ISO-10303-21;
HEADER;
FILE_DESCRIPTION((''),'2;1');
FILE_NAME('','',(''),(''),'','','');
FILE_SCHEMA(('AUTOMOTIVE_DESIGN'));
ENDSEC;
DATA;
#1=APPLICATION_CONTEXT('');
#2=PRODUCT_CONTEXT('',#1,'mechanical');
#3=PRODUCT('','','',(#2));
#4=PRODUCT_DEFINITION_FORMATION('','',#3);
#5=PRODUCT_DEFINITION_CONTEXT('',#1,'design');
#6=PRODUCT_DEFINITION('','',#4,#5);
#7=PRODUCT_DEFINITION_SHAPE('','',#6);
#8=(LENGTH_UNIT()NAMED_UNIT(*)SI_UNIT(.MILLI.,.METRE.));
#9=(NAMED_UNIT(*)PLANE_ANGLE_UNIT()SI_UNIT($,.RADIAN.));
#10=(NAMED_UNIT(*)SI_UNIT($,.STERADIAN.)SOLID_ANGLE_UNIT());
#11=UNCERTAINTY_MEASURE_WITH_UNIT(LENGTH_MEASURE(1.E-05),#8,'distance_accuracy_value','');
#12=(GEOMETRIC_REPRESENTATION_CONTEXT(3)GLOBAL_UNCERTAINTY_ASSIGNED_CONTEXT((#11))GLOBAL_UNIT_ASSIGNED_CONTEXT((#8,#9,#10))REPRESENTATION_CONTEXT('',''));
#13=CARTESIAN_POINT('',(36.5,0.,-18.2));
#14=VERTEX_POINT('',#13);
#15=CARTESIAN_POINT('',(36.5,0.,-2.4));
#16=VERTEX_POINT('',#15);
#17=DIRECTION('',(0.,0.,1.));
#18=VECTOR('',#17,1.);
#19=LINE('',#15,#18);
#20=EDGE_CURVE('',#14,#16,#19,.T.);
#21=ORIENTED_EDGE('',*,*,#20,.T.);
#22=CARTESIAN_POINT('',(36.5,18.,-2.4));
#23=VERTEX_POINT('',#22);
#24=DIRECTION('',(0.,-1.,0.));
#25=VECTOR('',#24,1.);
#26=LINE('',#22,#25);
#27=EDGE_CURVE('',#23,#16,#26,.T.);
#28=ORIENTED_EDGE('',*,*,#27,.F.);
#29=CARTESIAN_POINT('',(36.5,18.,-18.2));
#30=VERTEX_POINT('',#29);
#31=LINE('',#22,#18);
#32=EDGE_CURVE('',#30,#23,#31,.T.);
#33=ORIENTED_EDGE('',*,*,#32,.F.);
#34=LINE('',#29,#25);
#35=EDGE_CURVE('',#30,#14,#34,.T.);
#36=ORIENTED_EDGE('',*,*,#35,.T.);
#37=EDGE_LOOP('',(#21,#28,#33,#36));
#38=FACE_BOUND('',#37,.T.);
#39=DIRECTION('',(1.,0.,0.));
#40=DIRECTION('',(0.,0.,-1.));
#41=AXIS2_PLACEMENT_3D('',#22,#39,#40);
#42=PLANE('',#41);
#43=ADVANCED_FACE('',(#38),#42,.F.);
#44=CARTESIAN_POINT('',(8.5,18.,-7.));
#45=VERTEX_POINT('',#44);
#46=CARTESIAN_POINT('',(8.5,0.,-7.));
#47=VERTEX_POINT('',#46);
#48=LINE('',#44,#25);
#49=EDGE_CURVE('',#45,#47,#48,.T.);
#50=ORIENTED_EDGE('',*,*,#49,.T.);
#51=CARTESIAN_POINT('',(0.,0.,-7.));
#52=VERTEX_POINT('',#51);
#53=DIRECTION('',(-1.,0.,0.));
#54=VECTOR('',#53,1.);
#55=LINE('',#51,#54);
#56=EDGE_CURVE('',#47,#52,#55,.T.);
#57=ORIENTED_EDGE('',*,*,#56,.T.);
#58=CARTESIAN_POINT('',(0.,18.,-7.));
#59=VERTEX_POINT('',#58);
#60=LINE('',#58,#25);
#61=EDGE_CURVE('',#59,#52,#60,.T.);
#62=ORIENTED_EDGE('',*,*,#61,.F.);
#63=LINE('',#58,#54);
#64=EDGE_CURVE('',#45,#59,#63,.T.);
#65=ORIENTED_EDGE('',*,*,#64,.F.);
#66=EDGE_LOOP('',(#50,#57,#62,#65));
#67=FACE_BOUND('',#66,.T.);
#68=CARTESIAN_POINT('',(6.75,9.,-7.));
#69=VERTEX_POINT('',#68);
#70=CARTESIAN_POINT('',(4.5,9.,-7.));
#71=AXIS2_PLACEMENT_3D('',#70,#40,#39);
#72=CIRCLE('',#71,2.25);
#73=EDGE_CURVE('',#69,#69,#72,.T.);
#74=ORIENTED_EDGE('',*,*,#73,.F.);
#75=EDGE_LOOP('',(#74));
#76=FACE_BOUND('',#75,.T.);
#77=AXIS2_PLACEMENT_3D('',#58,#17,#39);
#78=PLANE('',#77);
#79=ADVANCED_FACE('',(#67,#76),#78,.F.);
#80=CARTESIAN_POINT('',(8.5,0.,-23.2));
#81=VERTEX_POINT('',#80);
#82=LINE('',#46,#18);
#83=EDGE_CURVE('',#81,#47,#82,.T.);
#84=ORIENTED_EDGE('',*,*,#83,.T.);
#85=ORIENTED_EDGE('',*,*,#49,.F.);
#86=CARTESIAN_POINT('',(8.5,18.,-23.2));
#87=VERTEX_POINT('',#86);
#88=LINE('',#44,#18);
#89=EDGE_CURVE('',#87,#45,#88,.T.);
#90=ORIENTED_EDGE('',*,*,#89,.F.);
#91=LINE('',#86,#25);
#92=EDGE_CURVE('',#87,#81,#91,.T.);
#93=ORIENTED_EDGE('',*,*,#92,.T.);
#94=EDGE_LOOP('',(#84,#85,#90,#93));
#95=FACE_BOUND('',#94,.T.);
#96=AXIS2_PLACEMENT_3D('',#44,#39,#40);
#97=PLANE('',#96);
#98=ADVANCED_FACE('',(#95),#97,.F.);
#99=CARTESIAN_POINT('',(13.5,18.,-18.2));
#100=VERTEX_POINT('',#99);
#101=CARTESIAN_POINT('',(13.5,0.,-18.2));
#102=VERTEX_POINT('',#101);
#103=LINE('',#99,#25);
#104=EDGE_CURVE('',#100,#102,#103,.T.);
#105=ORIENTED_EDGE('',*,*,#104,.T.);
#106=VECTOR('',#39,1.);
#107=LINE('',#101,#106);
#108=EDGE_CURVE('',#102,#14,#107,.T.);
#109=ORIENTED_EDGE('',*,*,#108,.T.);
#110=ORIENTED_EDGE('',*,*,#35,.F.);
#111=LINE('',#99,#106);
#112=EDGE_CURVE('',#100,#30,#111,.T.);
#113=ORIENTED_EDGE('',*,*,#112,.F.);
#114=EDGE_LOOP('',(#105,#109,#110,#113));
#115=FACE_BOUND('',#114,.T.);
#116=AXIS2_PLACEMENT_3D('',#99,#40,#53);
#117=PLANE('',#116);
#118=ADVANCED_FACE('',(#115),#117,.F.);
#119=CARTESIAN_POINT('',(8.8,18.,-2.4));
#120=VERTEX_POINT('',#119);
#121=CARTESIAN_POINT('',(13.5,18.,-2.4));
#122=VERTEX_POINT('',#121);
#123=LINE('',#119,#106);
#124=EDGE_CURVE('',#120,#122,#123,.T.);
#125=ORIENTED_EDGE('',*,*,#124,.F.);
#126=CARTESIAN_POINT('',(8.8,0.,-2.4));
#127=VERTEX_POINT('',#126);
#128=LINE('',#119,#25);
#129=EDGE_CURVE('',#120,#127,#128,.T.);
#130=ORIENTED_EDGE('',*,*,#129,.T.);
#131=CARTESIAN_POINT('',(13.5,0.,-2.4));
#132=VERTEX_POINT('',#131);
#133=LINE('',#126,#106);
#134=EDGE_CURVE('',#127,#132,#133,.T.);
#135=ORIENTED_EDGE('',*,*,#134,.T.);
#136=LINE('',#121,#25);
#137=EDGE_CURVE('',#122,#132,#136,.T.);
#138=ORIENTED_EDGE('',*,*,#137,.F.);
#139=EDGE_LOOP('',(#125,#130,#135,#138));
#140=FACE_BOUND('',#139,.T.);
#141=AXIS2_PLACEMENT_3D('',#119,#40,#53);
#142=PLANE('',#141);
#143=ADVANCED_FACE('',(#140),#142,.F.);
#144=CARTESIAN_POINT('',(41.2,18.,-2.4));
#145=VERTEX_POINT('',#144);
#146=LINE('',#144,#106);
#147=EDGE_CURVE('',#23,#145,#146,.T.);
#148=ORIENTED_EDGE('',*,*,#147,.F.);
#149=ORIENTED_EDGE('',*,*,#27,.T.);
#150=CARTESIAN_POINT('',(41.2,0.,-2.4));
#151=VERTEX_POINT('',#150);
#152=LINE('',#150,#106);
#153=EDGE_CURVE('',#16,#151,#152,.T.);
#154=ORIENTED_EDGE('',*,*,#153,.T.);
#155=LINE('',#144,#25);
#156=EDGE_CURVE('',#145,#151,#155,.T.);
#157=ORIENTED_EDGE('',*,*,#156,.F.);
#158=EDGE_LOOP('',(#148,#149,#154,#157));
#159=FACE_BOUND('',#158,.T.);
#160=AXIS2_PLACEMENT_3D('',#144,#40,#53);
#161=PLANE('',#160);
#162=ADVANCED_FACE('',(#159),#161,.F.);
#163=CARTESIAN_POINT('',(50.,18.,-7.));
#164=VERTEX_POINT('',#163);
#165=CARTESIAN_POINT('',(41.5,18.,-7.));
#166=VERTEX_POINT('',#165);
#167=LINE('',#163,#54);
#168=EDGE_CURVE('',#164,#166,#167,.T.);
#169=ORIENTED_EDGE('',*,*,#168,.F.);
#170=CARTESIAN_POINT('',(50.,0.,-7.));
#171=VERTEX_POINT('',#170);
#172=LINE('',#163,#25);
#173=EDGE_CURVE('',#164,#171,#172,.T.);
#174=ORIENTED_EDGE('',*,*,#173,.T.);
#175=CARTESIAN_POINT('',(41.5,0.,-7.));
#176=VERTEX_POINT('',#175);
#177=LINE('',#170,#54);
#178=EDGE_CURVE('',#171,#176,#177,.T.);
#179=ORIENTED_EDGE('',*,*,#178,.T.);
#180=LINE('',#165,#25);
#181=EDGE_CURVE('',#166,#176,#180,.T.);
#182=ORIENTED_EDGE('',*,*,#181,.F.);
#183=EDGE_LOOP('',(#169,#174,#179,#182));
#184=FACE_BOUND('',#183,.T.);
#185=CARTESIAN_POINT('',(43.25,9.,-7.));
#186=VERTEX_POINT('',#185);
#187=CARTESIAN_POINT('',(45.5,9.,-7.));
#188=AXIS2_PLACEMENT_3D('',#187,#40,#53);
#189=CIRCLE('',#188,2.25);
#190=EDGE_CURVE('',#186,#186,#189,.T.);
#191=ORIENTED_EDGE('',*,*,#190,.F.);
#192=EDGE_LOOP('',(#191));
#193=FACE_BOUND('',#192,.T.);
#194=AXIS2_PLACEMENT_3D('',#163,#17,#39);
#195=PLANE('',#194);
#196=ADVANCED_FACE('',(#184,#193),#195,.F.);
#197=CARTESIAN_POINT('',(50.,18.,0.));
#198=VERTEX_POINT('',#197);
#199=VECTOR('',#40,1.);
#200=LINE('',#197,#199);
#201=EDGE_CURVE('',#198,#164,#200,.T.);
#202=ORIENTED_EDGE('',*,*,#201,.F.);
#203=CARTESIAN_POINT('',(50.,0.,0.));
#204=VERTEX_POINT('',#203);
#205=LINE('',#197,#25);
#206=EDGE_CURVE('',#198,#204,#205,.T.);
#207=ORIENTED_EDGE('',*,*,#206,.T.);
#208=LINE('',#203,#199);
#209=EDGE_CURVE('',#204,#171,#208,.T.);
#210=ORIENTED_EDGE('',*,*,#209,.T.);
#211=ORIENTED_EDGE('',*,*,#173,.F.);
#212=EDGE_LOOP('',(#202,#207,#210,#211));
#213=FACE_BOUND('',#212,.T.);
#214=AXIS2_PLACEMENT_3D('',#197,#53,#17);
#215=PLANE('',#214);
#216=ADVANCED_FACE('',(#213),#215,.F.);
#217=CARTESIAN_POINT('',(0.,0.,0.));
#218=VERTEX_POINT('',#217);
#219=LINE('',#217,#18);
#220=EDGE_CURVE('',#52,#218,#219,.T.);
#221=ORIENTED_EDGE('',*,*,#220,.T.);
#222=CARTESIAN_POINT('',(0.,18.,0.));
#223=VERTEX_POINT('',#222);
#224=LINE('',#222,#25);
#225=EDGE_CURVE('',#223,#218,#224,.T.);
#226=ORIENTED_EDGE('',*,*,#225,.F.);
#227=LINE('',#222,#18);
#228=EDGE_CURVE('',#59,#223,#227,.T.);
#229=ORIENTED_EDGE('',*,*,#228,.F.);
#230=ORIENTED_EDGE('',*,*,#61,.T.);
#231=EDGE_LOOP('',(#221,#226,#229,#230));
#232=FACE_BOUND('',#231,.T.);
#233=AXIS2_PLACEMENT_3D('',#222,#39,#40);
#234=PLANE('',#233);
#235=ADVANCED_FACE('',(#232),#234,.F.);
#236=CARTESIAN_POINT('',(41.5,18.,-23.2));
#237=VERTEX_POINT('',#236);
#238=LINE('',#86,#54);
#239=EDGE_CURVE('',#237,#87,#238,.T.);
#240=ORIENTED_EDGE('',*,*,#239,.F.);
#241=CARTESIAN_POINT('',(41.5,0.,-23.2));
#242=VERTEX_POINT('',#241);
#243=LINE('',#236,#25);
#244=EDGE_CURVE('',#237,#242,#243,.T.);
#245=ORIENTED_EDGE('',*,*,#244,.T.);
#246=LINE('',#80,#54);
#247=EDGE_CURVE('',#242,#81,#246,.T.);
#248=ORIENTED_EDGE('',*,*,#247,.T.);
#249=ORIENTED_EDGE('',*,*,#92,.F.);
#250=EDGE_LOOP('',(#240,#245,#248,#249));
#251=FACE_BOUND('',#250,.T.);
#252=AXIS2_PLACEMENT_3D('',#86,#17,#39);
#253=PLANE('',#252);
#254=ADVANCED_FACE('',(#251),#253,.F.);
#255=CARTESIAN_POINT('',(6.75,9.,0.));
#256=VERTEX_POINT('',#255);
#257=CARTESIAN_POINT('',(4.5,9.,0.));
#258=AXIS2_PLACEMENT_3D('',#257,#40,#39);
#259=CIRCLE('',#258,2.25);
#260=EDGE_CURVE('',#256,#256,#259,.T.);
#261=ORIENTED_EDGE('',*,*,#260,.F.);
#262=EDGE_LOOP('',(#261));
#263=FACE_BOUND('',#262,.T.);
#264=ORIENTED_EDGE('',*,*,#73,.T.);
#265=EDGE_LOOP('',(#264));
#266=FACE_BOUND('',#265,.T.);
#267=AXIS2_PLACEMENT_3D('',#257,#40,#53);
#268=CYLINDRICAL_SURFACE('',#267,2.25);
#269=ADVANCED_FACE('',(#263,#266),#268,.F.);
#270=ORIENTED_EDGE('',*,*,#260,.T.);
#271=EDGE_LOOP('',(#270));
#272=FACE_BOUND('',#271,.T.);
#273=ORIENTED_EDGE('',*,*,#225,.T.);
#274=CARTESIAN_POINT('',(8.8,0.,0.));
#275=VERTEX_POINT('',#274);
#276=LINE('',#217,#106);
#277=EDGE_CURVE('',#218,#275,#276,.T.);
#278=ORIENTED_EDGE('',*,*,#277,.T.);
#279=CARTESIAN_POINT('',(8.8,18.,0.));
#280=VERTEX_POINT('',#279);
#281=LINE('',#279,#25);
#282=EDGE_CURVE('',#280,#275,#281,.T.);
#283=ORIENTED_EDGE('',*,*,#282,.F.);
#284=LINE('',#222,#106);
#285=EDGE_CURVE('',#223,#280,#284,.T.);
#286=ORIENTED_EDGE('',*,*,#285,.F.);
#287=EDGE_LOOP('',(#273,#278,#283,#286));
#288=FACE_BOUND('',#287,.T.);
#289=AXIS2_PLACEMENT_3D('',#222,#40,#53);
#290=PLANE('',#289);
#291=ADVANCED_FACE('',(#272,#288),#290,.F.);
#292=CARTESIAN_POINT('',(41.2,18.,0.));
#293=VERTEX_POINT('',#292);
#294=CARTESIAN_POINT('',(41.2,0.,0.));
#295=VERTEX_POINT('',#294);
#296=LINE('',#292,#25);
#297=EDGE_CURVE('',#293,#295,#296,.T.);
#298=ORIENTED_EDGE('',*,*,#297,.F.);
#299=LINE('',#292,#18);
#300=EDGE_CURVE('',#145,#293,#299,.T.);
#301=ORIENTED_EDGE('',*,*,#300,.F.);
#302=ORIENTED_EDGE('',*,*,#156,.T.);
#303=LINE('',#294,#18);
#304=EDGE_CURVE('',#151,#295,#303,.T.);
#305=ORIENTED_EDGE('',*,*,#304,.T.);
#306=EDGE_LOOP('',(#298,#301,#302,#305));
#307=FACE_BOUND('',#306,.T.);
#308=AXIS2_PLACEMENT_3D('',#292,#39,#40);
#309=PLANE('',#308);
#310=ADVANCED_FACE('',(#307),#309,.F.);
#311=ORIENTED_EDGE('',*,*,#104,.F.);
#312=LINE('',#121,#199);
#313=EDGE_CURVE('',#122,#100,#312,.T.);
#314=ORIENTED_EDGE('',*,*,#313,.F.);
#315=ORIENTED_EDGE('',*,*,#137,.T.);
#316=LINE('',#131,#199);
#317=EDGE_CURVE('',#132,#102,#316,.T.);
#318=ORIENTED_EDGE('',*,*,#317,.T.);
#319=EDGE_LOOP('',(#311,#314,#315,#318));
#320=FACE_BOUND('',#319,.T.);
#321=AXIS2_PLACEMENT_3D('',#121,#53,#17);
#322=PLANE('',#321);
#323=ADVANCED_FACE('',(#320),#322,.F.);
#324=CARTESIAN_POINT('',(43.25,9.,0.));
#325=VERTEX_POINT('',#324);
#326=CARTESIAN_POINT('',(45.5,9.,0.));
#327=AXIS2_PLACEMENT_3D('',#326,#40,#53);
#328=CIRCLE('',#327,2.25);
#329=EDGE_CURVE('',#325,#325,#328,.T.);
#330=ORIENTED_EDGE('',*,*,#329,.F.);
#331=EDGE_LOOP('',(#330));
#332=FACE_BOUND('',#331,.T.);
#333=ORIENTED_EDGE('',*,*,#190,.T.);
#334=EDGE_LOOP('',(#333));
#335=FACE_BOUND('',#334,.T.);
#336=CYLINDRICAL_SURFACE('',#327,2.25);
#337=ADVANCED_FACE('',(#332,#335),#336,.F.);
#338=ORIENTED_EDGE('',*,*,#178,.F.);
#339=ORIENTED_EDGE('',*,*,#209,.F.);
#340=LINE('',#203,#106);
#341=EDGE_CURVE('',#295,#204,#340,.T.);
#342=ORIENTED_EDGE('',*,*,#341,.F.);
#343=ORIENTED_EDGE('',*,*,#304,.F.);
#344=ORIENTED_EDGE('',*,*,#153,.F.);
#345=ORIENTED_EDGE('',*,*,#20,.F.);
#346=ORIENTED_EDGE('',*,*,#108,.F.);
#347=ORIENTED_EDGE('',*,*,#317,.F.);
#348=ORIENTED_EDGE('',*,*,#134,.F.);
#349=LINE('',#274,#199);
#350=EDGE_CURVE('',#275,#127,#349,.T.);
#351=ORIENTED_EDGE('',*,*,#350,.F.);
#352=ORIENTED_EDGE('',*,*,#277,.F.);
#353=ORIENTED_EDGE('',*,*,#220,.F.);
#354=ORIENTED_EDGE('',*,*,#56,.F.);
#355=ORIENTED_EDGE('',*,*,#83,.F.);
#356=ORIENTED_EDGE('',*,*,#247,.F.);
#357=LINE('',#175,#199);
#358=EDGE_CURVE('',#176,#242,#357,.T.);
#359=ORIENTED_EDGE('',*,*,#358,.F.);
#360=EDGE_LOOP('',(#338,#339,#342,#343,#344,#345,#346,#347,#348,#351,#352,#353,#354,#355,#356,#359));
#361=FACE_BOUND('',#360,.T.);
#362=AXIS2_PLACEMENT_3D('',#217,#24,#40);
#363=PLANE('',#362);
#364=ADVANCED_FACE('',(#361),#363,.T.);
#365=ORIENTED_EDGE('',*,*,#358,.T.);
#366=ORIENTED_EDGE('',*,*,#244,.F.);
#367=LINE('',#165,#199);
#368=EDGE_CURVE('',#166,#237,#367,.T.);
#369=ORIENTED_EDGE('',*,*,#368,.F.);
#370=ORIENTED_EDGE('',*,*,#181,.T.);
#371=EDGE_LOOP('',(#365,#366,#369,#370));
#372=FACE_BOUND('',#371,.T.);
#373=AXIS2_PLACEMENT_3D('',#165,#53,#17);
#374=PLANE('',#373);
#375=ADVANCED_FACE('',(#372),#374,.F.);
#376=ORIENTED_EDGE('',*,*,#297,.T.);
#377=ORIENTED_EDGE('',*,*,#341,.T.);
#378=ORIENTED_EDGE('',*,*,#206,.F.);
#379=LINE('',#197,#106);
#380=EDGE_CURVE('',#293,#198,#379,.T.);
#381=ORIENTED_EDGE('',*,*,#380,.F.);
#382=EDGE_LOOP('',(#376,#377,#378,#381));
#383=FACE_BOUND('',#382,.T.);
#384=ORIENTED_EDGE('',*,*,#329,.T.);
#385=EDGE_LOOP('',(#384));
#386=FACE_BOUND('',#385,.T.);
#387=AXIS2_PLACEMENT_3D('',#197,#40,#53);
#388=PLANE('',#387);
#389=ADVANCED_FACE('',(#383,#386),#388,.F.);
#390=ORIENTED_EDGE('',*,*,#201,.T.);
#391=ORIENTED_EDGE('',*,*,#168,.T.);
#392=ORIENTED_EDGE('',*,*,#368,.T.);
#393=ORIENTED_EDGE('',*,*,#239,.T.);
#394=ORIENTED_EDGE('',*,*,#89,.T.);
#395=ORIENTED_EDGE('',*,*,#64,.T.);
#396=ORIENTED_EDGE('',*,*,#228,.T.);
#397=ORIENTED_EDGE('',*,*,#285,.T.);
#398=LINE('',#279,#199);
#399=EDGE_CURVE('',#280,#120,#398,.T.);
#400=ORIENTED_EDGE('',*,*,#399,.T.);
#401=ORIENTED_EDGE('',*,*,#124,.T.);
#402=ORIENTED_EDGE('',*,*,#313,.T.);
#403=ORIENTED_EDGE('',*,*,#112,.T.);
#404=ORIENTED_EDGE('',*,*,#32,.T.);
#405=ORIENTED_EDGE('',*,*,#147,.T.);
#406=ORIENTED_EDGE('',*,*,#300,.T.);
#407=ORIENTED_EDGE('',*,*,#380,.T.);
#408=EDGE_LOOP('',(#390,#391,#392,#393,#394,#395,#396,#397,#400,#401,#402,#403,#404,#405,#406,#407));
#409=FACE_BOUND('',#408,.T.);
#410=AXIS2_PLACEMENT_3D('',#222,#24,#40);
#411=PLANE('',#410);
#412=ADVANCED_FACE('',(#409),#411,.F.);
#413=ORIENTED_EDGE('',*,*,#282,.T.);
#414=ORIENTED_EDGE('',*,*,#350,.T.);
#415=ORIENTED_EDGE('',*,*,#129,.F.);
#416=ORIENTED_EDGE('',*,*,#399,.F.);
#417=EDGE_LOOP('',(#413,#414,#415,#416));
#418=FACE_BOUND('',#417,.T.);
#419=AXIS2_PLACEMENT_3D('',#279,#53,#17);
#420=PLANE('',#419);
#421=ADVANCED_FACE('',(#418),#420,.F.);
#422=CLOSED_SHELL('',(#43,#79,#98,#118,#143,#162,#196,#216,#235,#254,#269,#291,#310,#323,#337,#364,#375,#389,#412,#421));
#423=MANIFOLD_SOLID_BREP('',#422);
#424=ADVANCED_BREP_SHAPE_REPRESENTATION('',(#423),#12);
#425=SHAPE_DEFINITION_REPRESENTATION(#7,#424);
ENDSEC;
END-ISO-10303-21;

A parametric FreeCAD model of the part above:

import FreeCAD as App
import Part
import Sketcher
from FreeCAD import Vector

doc = App.newDocument("Part")
body = doc.addObject("PartDesign::Body", "Body")

sketch1 = body.newObject("Sketcher::SketchObject", "Sketch")
sketch1.AttachmentSupport = (doc.getObject("XZ_Plane"), [""])
sketch1.MapMode = "FlatFace"
sketch1.addGeometry([
    Part.LineSegment(Vector(0, 0, 0), Vector(8.8, 0, 0)),
    Part.LineSegment(Vector(8.8, 0, 0), Vector(8.8, -2.4, 0)),
    Part.LineSegment(Vector(8.8, -2.4, 0), Vector(13.5, -2.4, 0)),
    Part.LineSegment(Vector(13.5, -2.4, 0), Vector(13.5, -18.2, 0)),
    Part.LineSegment(Vector(13.5, -18.2, 0), Vector(36.5, -18.2, 0)),
    Part.LineSegment(Vector(36.5, -18.2, 0), Vector(36.5, -2.4, 0)),
    Part.LineSegment(Vector(36.5, -2.4, 0), Vector(41.2, -2.4, 0)),
    Part.LineSegment(Vector(41.2, -2.4, 0), Vector(41.2, 0, 0)),
    Part.LineSegment(Vector(41.2, 0, 0), Vector(50, 0, 0)),
    Part.LineSegment(Vector(50, 0, 0), Vector(50, -7, 0)),
    Part.LineSegment(Vector(50, -7, 0), Vector(41.5, -7, 0)),
    Part.LineSegment(Vector(41.5, -7, 0), Vector(41.5, -23.2, 0)),
    Part.LineSegment(Vector(41.5, -23.2, 0), Vector(8.5, -23.2, 0)),
    Part.LineSegment(Vector(8.5, -23.2, 0), Vector(8.5, -7, 0)),
    Part.LineSegment(Vector(8.5, -7, 0), Vector(0, -7, 0)),
    Part.LineSegment(Vector(0, -7, 0), Vector(0, 0, 0)),
], False)
sketch1.addConstraint([
    Sketcher.Constraint("Coincident", 0, 2, 1, 1),
    Sketcher.Constraint("Coincident", 1, 2, 2, 1),
    Sketcher.Constraint("Coincident", 2, 2, 3, 1),
    Sketcher.Constraint("Coincident", 3, 2, 4, 1),
    Sketcher.Constraint("Coincident", 4, 2, 5, 1),
    Sketcher.Constraint("Coincident", 5, 2, 6, 1),
    Sketcher.Constraint("Coincident", 6, 2, 7, 1),
    Sketcher.Constraint("Coincident", 7, 2, 8, 1),
    Sketcher.Constraint("Coincident", 8, 2, 9, 1),
    Sketcher.Constraint("Coincident", 9, 2, 10, 1),
    Sketcher.Constraint("Coincident", 10, 2, 11, 1),
    Sketcher.Constraint("Coincident", 11, 2, 12, 1),
    Sketcher.Constraint("Coincident", 12, 2, 13, 1),
    Sketcher.Constraint("Coincident", 13, 2, 14, 1),
    Sketcher.Constraint("Coincident", 14, 2, 15, 1),
    Sketcher.Constraint("Coincident", 15, 2, 0, 1),
    Sketcher.Constraint("Horizontal", 0),
    Sketcher.Constraint("Vertical", 1),
    Sketcher.Constraint("Horizontal", 2),
    Sketcher.Constraint("Vertical", 3),
    Sketcher.Constraint("Horizontal", 4),
    Sketcher.Constraint("Vertical", 5),
    Sketcher.Constraint("Horizontal", 6),
    Sketcher.Constraint("Vertical", 7),
    Sketcher.Constraint("Horizontal", 8),
    Sketcher.Constraint("Vertical", 9),
    Sketcher.Constraint("Horizontal", 10),
    Sketcher.Constraint("Vertical", 11),
    Sketcher.Constraint("Horizontal", 12),
    Sketcher.Constraint("Vertical", 13),
    Sketcher.Constraint("Horizontal", 14),
    Sketcher.Constraint("Vertical", 15),
    Sketcher.Constraint("Coincident", 15, 2, -1, 1),
    Sketcher.Constraint("PointOnObject", 7, 2, -1),
    Sketcher.Constraint("Horizontal", 2, 2, 5, 2),
    Sketcher.Constraint("Horizontal", 10, 2, 13, 2),
    Sketcher.Constraint("Equal", 2, 6),
    Sketcher.Constraint("Equal", 0, 8),
    Sketcher.Constraint("Equal", 10, 14),
    Sketcher.Constraint("DistanceX", 4, 1, 4, 2, 23.0),
    Sketcher.Constraint("DistanceX", 12, 2, 12, 1, 33.0),
    Sketcher.Constraint("DistanceY", 9, 2, 9, 1, 7.0),
    Sketcher.Constraint("DistanceX", 0, 1, 0, 2, 8.8),
    Sketcher.Constraint("DistanceX", 2, 1, 2, 2, 4.7),
    Sketcher.Constraint("DistanceY", 1, 2, 1, 1, 2.4),
    Sketcher.Constraint("DistanceY", 3, 2, 3, 1, 15.8),
    Sketcher.Constraint("DistanceY", 11, 2, 11, 1, 16.2),
])
pad1 = body.newObject("PartDesign::Pad", "Pad")
pad1.Profile = sketch1
pad1.Length = 18
pad1.Reversed = True

sketch2 = body.newObject("Sketcher::SketchObject", "Sketch001")
sketch2.AttachmentSupport = (doc.getObject("XY_Plane"), [""])
sketch2.MapMode = "FlatFace"
sketch2.AttachmentOffset = App.Placement(Vector(0, 0, -7), App.Rotation())
sketch2.addGeometry([
    Part.Circle(Vector(45.5, 9, 0), Vector(0, 0, 1), 2.2),
    Part.Circle(Vector(4.5, 9, 0), Vector(0, 0, 1), 2.2),
], False)
sketch2.addConstraint([
    Sketcher.Constraint("Equal", 0, 1),
    Sketcher.Constraint("Horizontal", 0, 3, 1, 3),
    Sketcher.Constraint("Diameter", 0, 4.5),
    Sketcher.Constraint("DistanceY", -1, 1, 0, 3, 9.0),
    Sketcher.Constraint("DistanceX", 1, 3, 0, 3, 41.0),
    Sketcher.Constraint("DistanceX", -1, 1, 0, 3, 45.5),
])
pocket1 = body.newObject("PartDesign::Pocket", "Pocket")
pocket1.Profile = sketch2
pocket1.Type = "ThroughAll"
pocket1.Reversed = True

doc.recompute()
